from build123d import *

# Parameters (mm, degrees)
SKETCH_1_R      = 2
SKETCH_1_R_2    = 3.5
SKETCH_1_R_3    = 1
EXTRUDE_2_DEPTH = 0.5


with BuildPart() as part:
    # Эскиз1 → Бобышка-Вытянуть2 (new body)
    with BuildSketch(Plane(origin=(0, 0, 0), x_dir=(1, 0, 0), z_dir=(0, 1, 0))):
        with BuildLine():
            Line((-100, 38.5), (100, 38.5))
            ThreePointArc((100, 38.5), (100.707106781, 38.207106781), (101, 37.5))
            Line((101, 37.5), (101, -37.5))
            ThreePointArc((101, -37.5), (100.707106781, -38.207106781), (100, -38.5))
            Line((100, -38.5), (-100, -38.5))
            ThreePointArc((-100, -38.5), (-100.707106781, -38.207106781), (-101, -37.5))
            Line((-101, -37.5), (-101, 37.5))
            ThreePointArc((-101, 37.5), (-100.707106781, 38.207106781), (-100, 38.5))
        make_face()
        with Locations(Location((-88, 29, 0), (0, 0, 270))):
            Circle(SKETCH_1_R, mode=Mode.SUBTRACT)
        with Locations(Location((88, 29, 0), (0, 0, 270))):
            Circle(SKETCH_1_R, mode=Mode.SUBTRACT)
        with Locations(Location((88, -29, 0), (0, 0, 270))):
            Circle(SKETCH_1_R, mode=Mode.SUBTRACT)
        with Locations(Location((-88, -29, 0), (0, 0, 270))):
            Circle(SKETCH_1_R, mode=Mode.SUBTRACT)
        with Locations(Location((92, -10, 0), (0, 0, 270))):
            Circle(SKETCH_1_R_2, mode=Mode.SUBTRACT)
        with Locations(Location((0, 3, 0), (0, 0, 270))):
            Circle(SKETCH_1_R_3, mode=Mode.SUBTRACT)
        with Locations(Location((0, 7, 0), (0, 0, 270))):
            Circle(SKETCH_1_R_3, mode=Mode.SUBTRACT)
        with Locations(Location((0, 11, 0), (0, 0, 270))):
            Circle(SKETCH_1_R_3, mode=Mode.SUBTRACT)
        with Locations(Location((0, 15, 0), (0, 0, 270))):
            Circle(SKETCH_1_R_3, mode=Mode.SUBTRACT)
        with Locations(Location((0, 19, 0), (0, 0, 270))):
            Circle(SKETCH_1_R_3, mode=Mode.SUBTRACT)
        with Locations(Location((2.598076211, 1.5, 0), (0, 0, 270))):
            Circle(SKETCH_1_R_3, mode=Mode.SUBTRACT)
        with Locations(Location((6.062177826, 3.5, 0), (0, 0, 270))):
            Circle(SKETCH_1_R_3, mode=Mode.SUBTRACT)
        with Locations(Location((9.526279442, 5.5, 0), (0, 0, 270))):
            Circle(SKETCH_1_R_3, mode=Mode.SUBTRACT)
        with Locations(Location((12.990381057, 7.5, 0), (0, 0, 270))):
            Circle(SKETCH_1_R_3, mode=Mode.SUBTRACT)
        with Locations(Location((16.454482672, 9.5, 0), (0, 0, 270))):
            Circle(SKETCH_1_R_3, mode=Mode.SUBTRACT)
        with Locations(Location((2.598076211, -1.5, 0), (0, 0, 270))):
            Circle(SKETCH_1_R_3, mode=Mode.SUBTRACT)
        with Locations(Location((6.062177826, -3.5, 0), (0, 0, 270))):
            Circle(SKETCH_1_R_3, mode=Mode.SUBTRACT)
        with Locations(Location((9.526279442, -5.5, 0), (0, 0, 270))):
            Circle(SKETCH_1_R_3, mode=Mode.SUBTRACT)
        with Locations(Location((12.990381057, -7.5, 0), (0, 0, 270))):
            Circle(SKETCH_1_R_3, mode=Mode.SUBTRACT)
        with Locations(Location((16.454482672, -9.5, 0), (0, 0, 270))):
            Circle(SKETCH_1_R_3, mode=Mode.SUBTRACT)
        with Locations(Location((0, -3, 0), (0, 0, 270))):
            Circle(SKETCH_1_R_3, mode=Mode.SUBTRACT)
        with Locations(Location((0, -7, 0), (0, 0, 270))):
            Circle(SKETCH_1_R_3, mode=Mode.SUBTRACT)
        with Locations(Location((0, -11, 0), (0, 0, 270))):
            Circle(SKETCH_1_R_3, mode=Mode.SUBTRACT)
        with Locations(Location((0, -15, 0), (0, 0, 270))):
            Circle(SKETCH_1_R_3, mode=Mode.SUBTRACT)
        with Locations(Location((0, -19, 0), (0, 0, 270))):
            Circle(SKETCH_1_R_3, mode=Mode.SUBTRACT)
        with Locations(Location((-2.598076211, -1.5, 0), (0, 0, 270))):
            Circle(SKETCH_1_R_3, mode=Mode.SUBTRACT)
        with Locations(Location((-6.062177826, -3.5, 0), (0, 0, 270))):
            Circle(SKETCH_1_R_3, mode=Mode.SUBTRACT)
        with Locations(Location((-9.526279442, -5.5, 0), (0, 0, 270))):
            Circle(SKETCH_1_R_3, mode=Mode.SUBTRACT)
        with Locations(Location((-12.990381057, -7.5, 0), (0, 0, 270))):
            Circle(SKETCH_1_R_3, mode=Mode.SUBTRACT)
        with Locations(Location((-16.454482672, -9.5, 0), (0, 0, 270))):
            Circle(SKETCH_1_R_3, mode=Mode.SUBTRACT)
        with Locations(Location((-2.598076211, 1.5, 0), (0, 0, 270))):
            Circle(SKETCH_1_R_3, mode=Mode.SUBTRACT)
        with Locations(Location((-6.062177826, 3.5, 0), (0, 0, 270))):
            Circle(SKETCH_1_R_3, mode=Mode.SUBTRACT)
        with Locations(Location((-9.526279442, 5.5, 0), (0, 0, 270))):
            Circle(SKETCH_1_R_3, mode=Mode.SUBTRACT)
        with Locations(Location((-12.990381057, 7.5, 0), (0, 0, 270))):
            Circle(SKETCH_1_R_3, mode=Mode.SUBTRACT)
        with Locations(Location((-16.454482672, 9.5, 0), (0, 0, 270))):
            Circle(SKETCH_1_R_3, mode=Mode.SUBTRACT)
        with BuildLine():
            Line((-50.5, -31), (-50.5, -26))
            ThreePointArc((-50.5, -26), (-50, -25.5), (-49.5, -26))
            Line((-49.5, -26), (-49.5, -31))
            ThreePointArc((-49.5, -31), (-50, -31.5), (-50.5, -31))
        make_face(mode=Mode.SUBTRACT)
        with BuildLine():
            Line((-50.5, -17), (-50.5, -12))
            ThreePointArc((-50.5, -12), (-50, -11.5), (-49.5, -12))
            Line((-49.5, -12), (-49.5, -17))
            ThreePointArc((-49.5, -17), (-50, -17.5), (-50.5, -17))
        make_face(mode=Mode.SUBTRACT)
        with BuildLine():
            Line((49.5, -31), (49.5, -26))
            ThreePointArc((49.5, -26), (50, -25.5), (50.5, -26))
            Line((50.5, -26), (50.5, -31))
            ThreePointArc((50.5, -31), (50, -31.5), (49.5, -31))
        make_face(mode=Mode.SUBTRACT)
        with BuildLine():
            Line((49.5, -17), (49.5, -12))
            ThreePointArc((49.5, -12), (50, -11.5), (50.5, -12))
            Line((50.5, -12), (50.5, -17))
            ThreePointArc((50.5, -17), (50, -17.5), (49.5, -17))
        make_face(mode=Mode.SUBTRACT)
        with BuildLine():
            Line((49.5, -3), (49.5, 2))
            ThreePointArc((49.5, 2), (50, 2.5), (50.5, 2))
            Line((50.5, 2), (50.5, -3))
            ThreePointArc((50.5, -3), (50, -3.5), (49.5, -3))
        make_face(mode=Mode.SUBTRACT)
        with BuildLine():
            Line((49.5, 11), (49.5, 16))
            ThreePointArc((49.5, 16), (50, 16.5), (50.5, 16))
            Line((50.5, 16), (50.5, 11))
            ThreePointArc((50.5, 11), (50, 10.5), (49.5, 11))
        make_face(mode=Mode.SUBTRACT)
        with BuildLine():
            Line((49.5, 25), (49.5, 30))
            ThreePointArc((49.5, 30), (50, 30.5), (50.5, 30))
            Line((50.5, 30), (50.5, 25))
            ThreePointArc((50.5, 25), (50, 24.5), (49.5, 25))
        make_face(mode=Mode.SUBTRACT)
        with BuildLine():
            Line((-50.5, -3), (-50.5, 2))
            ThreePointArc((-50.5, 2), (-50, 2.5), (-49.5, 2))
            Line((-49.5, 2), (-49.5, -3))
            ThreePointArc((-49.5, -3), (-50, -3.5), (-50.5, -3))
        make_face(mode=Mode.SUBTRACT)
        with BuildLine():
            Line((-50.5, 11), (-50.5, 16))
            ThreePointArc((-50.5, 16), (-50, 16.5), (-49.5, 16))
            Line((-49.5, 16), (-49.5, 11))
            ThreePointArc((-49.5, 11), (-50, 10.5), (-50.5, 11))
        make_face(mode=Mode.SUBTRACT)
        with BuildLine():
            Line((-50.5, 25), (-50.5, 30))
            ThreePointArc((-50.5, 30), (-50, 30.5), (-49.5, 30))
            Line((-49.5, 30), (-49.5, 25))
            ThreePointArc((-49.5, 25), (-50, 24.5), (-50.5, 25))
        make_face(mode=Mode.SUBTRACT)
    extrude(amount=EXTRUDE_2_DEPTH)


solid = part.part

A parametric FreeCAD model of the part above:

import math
import FreeCAD as App
import Part
import Sketcher
Q = App.Units.Quantity

doc = App.newDocument("Part")
body = doc.addObject("PartDesign::Body", "Body")

# Sketch on XZ plane
sketch1 = doc.addObject("Sketcher::SketchObject", "Sketch")
body.addObject(sketch1)
sketch1.AttachmentSupport = (doc.XZ_Plane, [""])
sketch1.MapMode = "FlatFace"
sketch1.addGeometry(Part.LineSegment(App.Vector(100, -38.5, 0), App.Vector(-100, -38.5, 0)), False)
sketch1.addGeometry(Part.ArcOfCircle(Part.Circle(App.Vector(-100, -37.5, 0), App.Vector(0, 0, 1), 1), math.radians(-180), math.radians(-90)), False)
sketch1.addGeometry(Part.LineSegment(App.Vector(-101, -37.5, 0), App.Vector(-101, 37.5, 0)), False)
sketch1.addGeometry(Part.ArcOfCircle(Part.Circle(App.Vector(-100, 37.5, 0), App.Vector(0, 0, 1), 1), math.radians(90), math.radians(180)), False)
sketch1.addGeometry(Part.LineSegment(App.Vector(-100, 38.5, 0), App.Vector(100, 38.5, 0)), False)
sketch1.addGeometry(Part.ArcOfCircle(Part.Circle(App.Vector(100, 37.5, 0), App.Vector(0, 0, 1), 1), math.radians(0), math.radians(90)), False)
sketch1.addGeometry(Part.LineSegment(App.Vector(101, 37.5, 0), App.Vector(101, -37.5, 0)), False)
sketch1.addGeometry(Part.ArcOfCircle(Part.Circle(App.Vector(100, -37.5, 0), App.Vector(0, 0, 1), 1), math.radians(-90), math.radians(0)), False)
sketch1.addGeometry(Part.Circle(App.Vector(88, 29, 0), App.Vector(0, 0, 1), 2), False)
sketch1.addGeometry(Part.LineSegment(App.Vector(49.5, 31, 0), App.Vector(49.5, 26, 0)), False)
sketch1.addGeometry(Part.ArcOfCircle(Part.Circle(App.Vector(50, 26, 0), App.Vector(0, 0, 1), 0.5), math.radians(180), math.radians(360)), False)
sketch1.addGeometry(Part.LineSegment(App.Vector(50.5, 26, 0), App.Vector(50.5, 31, 0)), False)
sketch1.addGeometry(Part.ArcOfCircle(Part.Circle(App.Vector(50, 31, 0), App.Vector(0, 0, 1), 0.5), math.radians(0), math.radians(180)), False)
sketch1.addGeometry(Part.Circle(App.Vector(92, 10, 0), App.Vector(0, 0, 1), 3.5), False)
sketch1.addGeometry(Part.LineSegment(App.Vector(49.5, 17, 0), App.Vector(49.5, 12, 0)), False)
sketch1.addGeometry(Part.ArcOfCircle(Part.Circle(App.Vector(50, 12, 0), App.Vector(0, 0, 1), 0.5), math.radians(180), math.radians(360)), False)
sketch1.addGeometry(Part.LineSegment(App.Vector(50.5, 12, 0), App.Vector(50.5, 17, 0)), False)
sketch1.addGeometry(Part.ArcOfCircle(Part.Circle(App.Vector(50, 17, 0), App.Vector(0, 0, 1), 0.5), math.radians(0), math.radians(180)), False)
sketch1.addGeometry(Part.LineSegment(App.Vector(49.5, 3, 0), App.Vector(49.5, -2, 0)), False)
sketch1.addGeometry(Part.ArcOfCircle(Part.Circle(App.Vector(50, -2, 0), App.Vector(0, 0, 1), 0.5), math.radians(180), math.radians(360)), False)
sketch1.addGeometry(Part.LineSegment(App.Vector(50.5, -2, 0), App.Vector(50.5, 3, 0)), False)
sketch1.addGeometry(Part.ArcOfCircle(Part.Circle(App.Vector(50, 3, 0), App.Vector(0, 0, 1), 0.5), math.radians(0), math.radians(180)), False)
sketch1.addGeometry(Part.Circle(App.Vector(16.5, 9.5, 0), App.Vector(0, 0, 1), 1), False)
sketch1.addGeometry(Part.Circle(App.Vector(13, 7.5, 0), App.Vector(0, 0, 1), 1), False)
sketch1.addGeometry(Part.Circle(App.Vector(9.5, 5.5, 0), App.Vector(0, 0, 1), 1), False)
sketch1.addGeometry(Part.Circle(App.Vector(6.1, 3.5, 0), App.Vector(0, 0, 1), 1), False)
sketch1.addGeometry(Part.Circle(App.Vector(0, 19, 0), App.Vector(0, 0, 1), 1), False)
sketch1.addGeometry(Part.LineSegment(App.Vector(-50.5, 31, 0), App.Vector(-50.5, 26, 0)), False)
sketch1.addGeometry(Part.ArcOfCircle(Part.Circle(App.Vector(-50, 26, 0), App.Vector(0, 0, 1), 0.5), math.radians(180), math.radians(360)), False)
sketch1.addGeometry(Part.LineSegment(App.Vector(-49.5, 26, 0), App.Vector(-49.5, 31, 0)), False)
sketch1.addGeometry(Part.ArcOfCircle(Part.Circle(App.Vector(-50, 31, 0), App.Vector(0, 0, 1), 0.5), math.radians(0), math.radians(180)), False)
sketch1.addGeometry(Part.Circle(App.Vector(-88, 29, 0), App.Vector(0, 0, 1), 2), False)
sketch1.addGeometry(Part.Circle(App.Vector(0, 15, 0), App.Vector(0, 0, 1), 1), False)
sketch1.addGeometry(Part.Circle(App.Vector(0, 11, 0), App.Vector(0, 0, 1), 1), False)
sketch1.addGeometry(Part.Circle(App.Vector(-16.5, 9.5, 0), App.Vector(0, 0, 1), 1), False)
sketch1.addGeometry(Part.Circle(App.Vector(0, 7, 0), App.Vector(0, 0, 1), 1), False)
sketch1.addGeometry(Part.Circle(App.Vector(-13, 7.5, 0), App.Vector(0, 0, 1), 1), False)
sketch1.addGeometry(Part.Circle(App.Vector(-9.5, 5.5, 0), App.Vector(0, 0, 1), 1), False)
sketch1.addGeometry(Part.Circle(App.Vector(0, 3, 0), App.Vector(0, 0, 1), 1), False)
sketch1.addGeometry(Part.Circle(App.Vector(-6.1, 3.5, 0), App.Vector(0, 0, 1), 1), False)
sketch1.addGeometry(Part.Circle(App.Vector(2.6, 1.5, 0), App.Vector(0, 0, 1), 1), False)
sketch1.addGeometry(Part.Circle(App.Vector(-2.6, 1.5, 0), App.Vector(0, 0, 1), 1), False)
sketch1.addGeometry(Part.LineSegment(App.Vector(-50.5, 17, 0), App.Vector(-50.5, 12, 0)), False)
sketch1.addGeometry(Part.ArcOfCircle(Part.Circle(App.Vector(-50, 12, 0), App.Vector(0, 0, 1), 0.5), math.radians(180), math.radians(360)), False)
sketch1.addGeometry(Part.LineSegment(App.Vector(-49.5, 12, 0), App.Vector(-49.5, 17, 0)), False)
sketch1.addGeometry(Part.ArcOfCircle(Part.Circle(App.Vector(-50, 17, 0), App.Vector(0, 0, 1), 0.5), math.radians(0), math.radians(180)), False)
sketch1.addGeometry(Part.LineSegment(App.Vector(-50.5, 3, 0), App.Vector(-50.5, -2, 0)), False)
sketch1.addGeometry(Part.ArcOfCircle(Part.Circle(App.Vector(-50, -2, 0), App.Vector(0, 0, 1), 0.5), math.radians(180), math.radians(360)), False)
sketch1.addGeometry(Part.LineSegment(App.Vector(-49.5, -2, 0), App.Vector(-49.5, 3, 0)), False)
sketch1.addGeometry(Part.ArcOfCircle(Part.Circle(App.Vector(-50, 3, 0), App.Vector(0, 0, 1), 0.5), math.radians(0), math.radians(180)), False)
sketch1.addGeometry(Part.LineSegment(App.Vector(49.5, -11, 0), App.Vector(49.5, -16, 0)), False)
sketch1.addGeometry(Part.ArcOfCircle(Part.Circle(App.Vector(50, -16, 0), App.Vector(0, 0, 1), 0.5), math.radians(180), math.radians(360)), False)
sketch1.addGeometry(Part.LineSegment(App.Vector(50.5, -16, 0), App.Vector(50.5, -11, 0)), False)
sketch1.addGeometry(Part.ArcOfCircle(Part.Circle(App.Vector(50, -11, 0), App.Vector(0, 0, 1), 0.5), math.radians(0), math.radians(180)), False)
sketch1.addGeometry(Part.Circle(App.Vector(6.1, -3.5, 0), App.Vector(0, 0, 1), 1), False)
sketch1.addGeometry(Part.Circle(App.Vector(9.5, -5.5, 0), App.Vector(0, 0, 1), 1), False)
sketch1.addGeometry(Part.Circle(App.Vector(13, -7.5, 0), App.Vector(0, 0, 1), 1), False)
sketch1.addGeometry(Part.Circle(App.Vector(16.5, -9.5, 0), App.Vector(0, 0, 1), 1), False)
sketch1.addGeometry(Part.Circle(App.Vector(88, -29, 0), App.Vector(0, 0, 1), 2), False)
sketch1.addGeometry(Part.LineSegment(App.Vector(49.5, -25, 0), App.Vector(49.5, -30, 0)), False)
sketch1.addGeometry(Part.ArcOfCircle(Part.Circle(App.Vector(50, -30, 0), App.Vector(0, 0, 1), 0.5), math.radians(180), math.radians(360)), False)
sketch1.addGeometry(Part.LineSegment(App.Vector(50.5, -30, 0), App.Vector(50.5, -25, 0)), False)
sketch1.addGeometry(Part.ArcOfCircle(Part.Circle(App.Vector(50, -25, 0), App.Vector(0, 0, 1), 0.5), math.radians(0), math.radians(180)), False)
sketch1.addGeometry(Part.Circle(App.Vector(2.6, -1.5, 0), App.Vector(0, 0, 1), 1), False)
sketch1.addGeometry(Part.Circle(App.Vector(-2.6, -1.5, 0), App.Vector(0, 0, 1), 1), False)
sketch1.addGeometry(Part.Circle(App.Vector(0, -3, 0), App.Vector(0, 0, 1), 1), False)
sketch1.addGeometry(Part.Circle(App.Vector(-6.1, -3.5, 0), App.Vector(0, 0, 1), 1), False)
sketch1.addGeometry(Part.Circle(App.Vector(0, -7, 0), App.Vector(0, 0, 1), 1), False)
sketch1.addGeometry(Part.Circle(App.Vector(-9.5, -5.5, 0), App.Vector(0, 0, 1), 1), False)
sketch1.addGeometry(Part.Circle(App.Vector(-13, -7.5, 0), App.Vector(0, 0, 1), 1), False)
sketch1.addGeometry(Part.Circle(App.Vector(0, -11, 0), App.Vector(0, 0, 1), 1), False)
sketch1.addGeometry(Part.Circle(App.Vector(-16.5, -9.5, 0), App.Vector(0, 0, 1), 1), False)
sketch1.addGeometry(Part.Circle(App.Vector(0, -15, 0), App.Vector(0, 0, 1), 1), False)
sketch1.addGeometry(Part.LineSegment(App.Vector(-50.5, -11, 0), App.Vector(-50.5, -16, 0)), False)
sketch1.addGeometry(Part.ArcOfCircle(Part.Circle(App.Vector(-50, -16, 0), App.Vector(0, 0, 1), 0.5), math.radians(180), math.radians(360)), False)
sketch1.addGeometry(Part.LineSegment(App.Vector(-49.5, -16, 0), App.Vector(-49.5, -11, 0)), False)
sketch1.addGeometry(Part.ArcOfCircle(Part.Circle(App.Vector(-50, -11, 0), App.Vector(0, 0, 1), 0.5), math.radians(0), math.radians(180)), False)
sketch1.addGeometry(Part.Circle(App.Vector(0, -19, 0), App.Vector(0, 0, 1), 1), False)
sketch1.addGeometry(Part.LineSegment(App.Vector(-50.5, -25, 0), App.Vector(-50.5, -30, 0)), False)
sketch1.addGeometry(Part.ArcOfCircle(Part.Circle(App.Vector(-50, -30, 0), App.Vector(0, 0, 1), 0.5), math.radians(180), math.radians(360)), False)
sketch1.addGeometry(Part.LineSegment(App.Vector(-49.5, -30, 0), App.Vector(-49.5, -25, 0)), False)
sketch1.addGeometry(Part.ArcOfCircle(Part.Circle(App.Vector(-50, -25, 0), App.Vector(0, 0, 1), 0.5), math.radians(0), math.radians(180)), False)
sketch1.addGeometry(Part.Circle(App.Vector(-88, -29, 0), App.Vector(0, 0, 1), 2), False)
sketch1.addConstraint(Sketcher.Constraint("Tangent", 0, 2, 1, 2))
sketch1.addConstraint(Sketcher.Constraint("Tangent", 1, 1, 2, 1))
sketch1.addConstraint(Sketcher.Constraint("Tangent", 2, 2, 3, 2))
sketch1.addConstraint(Sketcher.Constraint("Tangent", 3, 1, 4, 1))
sketch1.addConstraint(Sketcher.Constraint("Tangent", 4, 2, 5, 2))
sketch1.addConstraint(Sketcher.Constraint("Tangent", 5, 1, 6, 1))
sketch1.addConstraint(Sketcher.Constraint("Tangent", 6, 2, 7, 2))
sketch1.addConstraint(Sketcher.Constraint("Tangent", 7, 1, 0, 1))
sketch1.addConstraint(Sketcher.Constraint("Tangent", 9, 2, 10, 1))
sketch1.addConstraint(Sketcher.Constraint("Tangent", 10, 2, 11, 1))
sketch1.addConstraint(Sketcher.Constraint("Tangent", 11, 2, 12, 1))
sketch1.addConstraint(Sketcher.Constraint("Tangent", 12, 2, 9, 1))
sketch1.addConstraint(Sketcher.Constraint("Tangent", 14, 2, 15, 1))
sketch1.addConstraint(Sketcher.Constraint("Tangent", 15, 2, 16, 1))
sketch1.addConstraint(Sketcher.Constraint("Tangent", 16, 2, 17, 1))
sketch1.addConstraint(Sketcher.Constraint("Tangent", 17, 2, 14, 1))
sketch1.addConstraint(Sketcher.Constraint("Tangent", 18, 2, 19, 1))
sketch1.addConstraint(Sketcher.Constraint("Tangent", 19, 2, 20, 1))
sketch1.addConstraint(Sketcher.Constraint("Tangent", 20, 2, 21, 1))
sketch1.addConstraint(Sketcher.Constraint("Tangent", 21, 2, 18, 1))
sketch1.addConstraint(Sketcher.Constraint("Tangent", 27, 2, 28, 1))
sketch1.addConstraint(Sketcher.Constraint("Tangent", 28, 2, 29, 1))
sketch1.addConstraint(Sketcher.Constraint("Tangent", 29, 2, 30, 1))
sketch1.addConstraint(Sketcher.Constraint("Tangent", 30, 2, 27, 1))
sketch1.addConstraint(Sketcher.Constraint("Tangent", 42, 2, 43, 1))
sketch1.addConstraint(Sketcher.Constraint("Tangent", 43, 2, 44, 1))
sketch1.addConstraint(Sketcher.Constraint("Tangent", 44, 2, 45, 1))
sketch1.addConstraint(Sketcher.Constraint("Tangent", 45, 2, 42, 1))
sketch1.addConstraint(Sketcher.Constraint("Tangent", 46, 2, 47, 1))
sketch1.addConstraint(Sketcher.Constraint("Tangent", 47, 2, 48, 1))
sketch1.addConstraint(Sketcher.Constraint("Tangent", 48, 2, 49, 1))
sketch1.addConstraint(Sketcher.Constraint("Tangent", 49, 2, 46, 1))
sketch1.addConstraint(Sketcher.Constraint("Tangent", 50, 2, 51, 1))
sketch1.addConstraint(Sketcher.Constraint("Tangent", 51, 2, 52, 1))
sketch1.addConstraint(Sketcher.Constraint("Tangent", 52, 2, 53, 1))
sketch1.addConstraint(Sketcher.Constraint("Tangent", 53, 2, 50, 1))
sketch1.addConstraint(Sketcher.Constraint("Tangent", 59, 2, 60, 1))
sketch1.addConstraint(Sketcher.Constraint("Tangent", 60, 2, 61, 1))
sketch1.addConstraint(Sketcher.Constraint("Tangent", 61, 2, 62, 1))
sketch1.addConstraint(Sketcher.Constraint("Tangent", 62, 2, 59, 1))
sketch1.addConstraint(Sketcher.Constraint("Tangent", 73, 2, 74, 1))
sketch1.addConstraint(Sketcher.Constraint("Tangent", 74, 2, 75, 1))
sketch1.addConstraint(Sketcher.Constraint("Tangent", 75, 2, 76, 1))
sketch1.addConstraint(Sketcher.Constraint("Tangent", 76, 2, 73, 1))
sketch1.addConstraint(Sketcher.Constraint("Tangent", 78, 2, 79, 1))
sketch1.addConstraint(Sketcher.Constraint("Tangent", 79, 2, 80, 1))
sketch1.addConstraint(Sketcher.Constraint("Tangent", 80, 2, 81, 1))
sketch1.addConstraint(Sketcher.Constraint("Tangent", 81, 2, 78, 1))
sketch1.addConstraint(Sketcher.Constraint("Horizontal", 0))
sketch1.addConstraint(Sketcher.Constraint("Vertical", 2))
sketch1.addConstraint(Sketcher.Constraint("Horizontal", 4))
sketch1.addConstraint(Sketcher.Constraint("Vertical", 6))
sketch1.addConstraint(Sketcher.Constraint("Vertical", 9))
sketch1.addConstraint(Sketcher.Constraint("Vertical", 11))
sketch1.addConstraint(Sketcher.Constraint("Vertical", 14))
sketch1.addConstraint(Sketcher.Constraint("Vertical", 16))
sketch1.addConstraint(Sketcher.Constraint("Vertical", 18))
sketch1.addConstraint(Sketcher.Constraint("Vertical", 20))
sketch1.addConstraint(Sketcher.Constraint("Vertical", 27))
sketch1.addConstraint(Sketcher.Constraint("Vertical", 29))
sketch1.addConstraint(Sketcher.Constraint("Vertical", 42))
sketch1.addConstraint(Sketcher.Constraint("Vertical", 44))
sketch1.addConstraint(Sketcher.Constraint("Vertical", 46))
sketch1.addConstraint(Sketcher.Constraint("Vertical", 48))
sketch1.addConstraint(Sketcher.Constraint("Vertical", 50))
sketch1.addConstraint(Sketcher.Constraint("Vertical", 52))
sketch1.addConstraint(Sketcher.Constraint("Vertical", 59))
sketch1.addConstraint(Sketcher.Constraint("Vertical", 61))
sketch1.addConstraint(Sketcher.Constraint("Vertical", 73))
sketch1.addConstraint(Sketcher.Constraint("Vertical", 75))
sketch1.addConstraint(Sketcher.Constraint("Vertical", 78))
sketch1.addConstraint(Sketcher.Constraint("Vertical", 80))
sketch1.addConstraint(Sketcher.Constraint("Equal", 1, 3))
sketch1.addConstraint(Sketcher.Constraint("Equal", 3, 5))
sketch1.addConstraint(Sketcher.Constraint("Equal", 5, 7))
sketch1.addConstraint(Sketcher.Constraint("Equal", 12, 15))
sketch1.addConstraint(Sketcher.Constraint("Equal", 17, 19))
sketch1.addConstraint(Sketcher.Constraint("Equal", 7, 22))
sketch1.addConstraint(Sketcher.Constraint("Equal", 22, 23))
sketch1.addConstraint(Sketcher.Constraint("Equal", 23, 24))
sketch1.addConstraint(Sketcher.Constraint("Equal", 24, 25))
sketch1.addConstraint(Sketcher.Constraint("Equal", 25, 26))
sketch1.addConstraint(Sketcher.Constraint("Equal", 21, 28))
sketch1.addConstraint(Sketcher.Constraint("Equal", 8, 31))
sketch1.addConstraint(Sketcher.Constraint("Equal", 26, 32))
sketch1.addConstraint(Sketcher.Constraint("Equal", 32, 33))
sketch1.addConstraint(Sketcher.Constraint("Equal", 33, 34))
sketch1.addConstraint(Sketcher.Constraint("Equal", 34, 35))
sketch1.addConstraint(Sketcher.Constraint("Equal", 35, 36))
sketch1.addConstraint(Sketcher.Constraint("Equal", 36, 37))
sketch1.addConstraint(Sketcher.Constraint("Equal", 37, 38))
sketch1.addConstraint(Sketcher.Constraint("Equal", 38, 39))
sketch1.addConstraint(Sketcher.Constraint("Equal", 39, 40))
sketch1.addConstraint(Sketcher.Constraint("Equal", 40, 41))
sketch1.addConstraint(Sketcher.Constraint("Equal", 30, 43))
sketch1.addConstraint(Sketcher.Constraint("Equal", 45, 47))
sketch1.addConstraint(Sketcher.Constraint("Equal", 49, 51))
sketch1.addConstraint(Sketcher.Constraint("Equal", 41, 54))
sketch1.addConstraint(Sketcher.Constraint("Equal", 54, 55))
sketch1.addConstraint(Sketcher.Constraint("Equal", 55, 56))
sketch1.addConstraint(Sketcher.Constraint("Equal", 56, 57))
sketch1.addConstraint(Sketcher.Constraint("Equal", 31, 58))
sketch1.addConstraint(Sketcher.Constraint("Equal", 53, 60))
sketch1.addConstraint(Sketcher.Constraint("Equal", 57, 63))
sketch1.addConstraint(Sketcher.Constraint("Equal", 63, 64))
sketch1.addConstraint(Sketcher.Constraint("Equal", 64, 65))
sketch1.addConstraint(Sketcher.Constraint("Equal", 65, 66))
sketch1.addConstraint(Sketcher.Constraint("Equal", 66, 67))
sketch1.addConstraint(Sketcher.Constraint("Equal", 67, 68))
sketch1.addConstraint(Sketcher.Constraint("Equal", 68, 69))
sketch1.addConstraint(Sketcher.Constraint("Equal", 69, 70))
sketch1.addConstraint(Sketcher.Constraint("Equal", 70, 71))
sketch1.addConstraint(Sketcher.Constraint("Equal", 71, 72))
sketch1.addConstraint(Sketcher.Constraint("Equal", 62, 74))
sketch1.addConstraint(Sketcher.Constraint("Equal", 72, 77))
sketch1.addConstraint(Sketcher.Constraint("Equal", 76, 79))
sketch1.addConstraint(Sketcher.Constraint("Equal", 58, 82))
sketch1.addConstraint(Sketcher.Constraint("Symmetric", 1, 3, 5, 3, -1, 1))
sketch1.addConstraint(Sketcher.Constraint("Symmetric", 39, 3, 54, 3, -1, 1))
sketch1.addConstraint(Sketcher.Constraint("Symmetric", 37, 3, 55, 3, -1, 1))
sketch1.addConstraint(Sketcher.Constraint("Symmetric", 36, 3, 56, 3, -1, 1))
sketch1.addConstraint(Sketcher.Constraint("Symmetric", 34, 3, 57, 3, -1, 1))
sketch1.addConstraint(Sketcher.Constraint("Symmetric", 31, 3, 58, 3, -1, 1))
sketch1.addConstraint(Sketcher.Constraint("Symmetric", 41, 3, 63, 3, -1, 1))
sketch1.addConstraint(Sketcher.Constraint("Symmetric", 40, 3, 64, 3, -1, 1))
sketch1.addConstraint(Sketcher.Constraint("Symmetric", 38, 3, 65, 3, -1, 1))
sketch1.addConstraint(Sketcher.Constraint("Symmetric", 25, 3, 66, 3, -1, 1))
sketch1.addConstraint(Sketcher.Constraint("Symmetric", 35, 3, 67, 3, -1, 1))
sketch1.addConstraint(Sketcher.Constraint("Symmetric", 24, 3, 68, 3, -1, 1))
sketch1.addConstraint(Sketcher.Constraint("Symmetric", 23, 3, 69, 3, -1, 1))
sketch1.addConstraint(Sketcher.Constraint("Symmetric", 33, 3, 70, 3, -1, 1))
sketch1.addConstraint(Sketcher.Constraint("Symmetric", 22, 3, 71, 3, -1, 1))
sketch1.addConstraint(Sketcher.Constraint("Symmetric", 32, 3, 72, 3, -1, 1))
sketch1.addConstraint(Sketcher.Constraint("Symmetric", 26, 3, 77, 3, -1, 1))
sketch1.addConstraint(Sketcher.Constraint("Symmetric", 8, 3, 82, 3, -1, 1))
sketch1.addConstraint(Sketcher.Constraint("Symmetric", 10, 3, 28, 3, -2))
sketch1.addConstraint(Sketcher.Constraint("Symmetric", 8, 3, 31, 3, -2))
sketch1.addConstraint(Sketcher.Constraint("Symmetric", 22, 3, 34, 3, -2))
sketch1.addConstraint(Sketcher.Constraint("Symmetric", 23, 3, 36, 3, -2))
sketch1.addConstraint(Sketcher.Constraint("Symmetric", 24, 3, 37, 3, -2))
sketch1.addConstraint(Sketcher.Constraint("Symmetric", 25, 3, 39, 3, -2))
sketch1.addConstraint(Sketcher.Constraint("Symmetric", 40, 3, 41, 3, -2))
sketch1.addConstraint(Sketcher.Constraint("Symmetric", 15, 3, 43, 3, -2))
sketch1.addConstraint(Sketcher.Constraint("Symmetric", 19, 3, 47, 3, -2))
sketch1.addConstraint(Sketcher.Constraint("Symmetric", 51, 3, 74, 3, -2))
sketch1.addConstraint(Sketcher.Constraint("Symmetric", 60, 3, 79, 3, -2))
sketch1.addConstraint(Sketcher.Constraint("PointOnObject", 26, 3, -2))
sketch1.addConstraint(Sketcher.Constraint("PointOnObject", 32, 3, -2))
sketch1.addConstraint(Sketcher.Constraint("PointOnObject", 33, 3, -2))
sketch1.addConstraint(Sketcher.Constraint("PointOnObject", 35, 3, -2))
sketch1.addConstraint(Sketcher.Constraint("PointOnObject", 38, 3, -2))
sketch1.addConstraint(Sketcher.Constraint("Horizontal", 12, 3, 30, 3))
sketch1.addConstraint(Sketcher.Constraint("Horizontal", 21, 3, 38, 3))
sketch1.addConstraint(Sketcher.Constraint("Horizontal", 17, 3, 45, 3))
sketch1.addConstraint(Sketcher.Constraint("Horizontal", 38, 3, 49, 3))
sketch1.addConstraint(Sketcher.Constraint("Horizontal", 53, 3, 70, 3))
sketch1.addConstraint(Sketcher.Constraint("Horizontal", 70, 3, 76, 3))
sketch1.addConstraint(Sketcher.Constraint("Horizontal", 62, 3, 81, 3))
sketch1.addConstraint(Sketcher.Constraint("Vertical", 12, 3, 15, 3))
sketch1.addConstraint(Sketcher.Constraint("Vertical", 17, 3, 19, 3))
sketch1.addConstraint(Sketcher.Constraint("Vertical", 21, 3, 51, 3))
sketch1.addConstraint(Sketcher.Constraint("Vertical", 53, 3, 60, 3))
sketch1.addConstraint(Sketcher.Constraint("Equal", 11, 14))
sketch1.addConstraint(Sketcher.Constraint("Equal", 16, 18))
sketch1.addConstraint(Sketcher.Constraint("Equal", 48, 50))
sketch1.addConstraint(Sketcher.Constraint("Equal", 52, 59))
sketch1.addConstraint(Sketcher.Constraint("Diameter", 8, Q("4 mm")))
sketch1.addConstraint(Sketcher.Constraint("Diameter", 13, Q("7 mm")))
sketch1.addConstraint(Sketcher.Constraint("Diameter", 22, Q("2 mm")))
sketch1.addConstraint(Sketcher.Constraint("Radius", 10, Q("0.5 mm")))
sketch1.addConstraint(Sketcher.Constraint("DistanceX", 0, 2, 0, 1, Q("200 mm")))
sketch1.addConstraint(Sketcher.Constraint("DistanceY", 2, 1, 2, 2, Q("75 mm")))
sketch1.addConstraint(Sketcher.Constraint("DistanceY", 9, 2, 9, 1, Q("5 mm")))
sketch1.addConstraint(Sketcher.Constraint("DistanceX", -1, 1, 8, 3, Q("88 mm")))
sketch1.addConstraint(Sketcher.Constraint("DistanceY", -1, 1, 8, 3, Q("29 mm")))
sketch1.addConstraint(Sketcher.Constraint("DistanceX", -1, 1, 10, 3, Q("50 mm")))
sketch1.addConstraint(Sketcher.Constraint("DistanceY", -1, 1, 10, 3, Q("26 mm")))
sketch1.addConstraint(Sketcher.Constraint("DistanceX", -1, 1, 13, 3, Q("92 mm")))
sketch1.addConstraint(Sketcher.Constraint("DistanceY", -1, 1, 13, 3, Q("10 mm")))
sketch1.addConstraint(Sketcher.Constraint("DistanceY", -1, 1, 15, 3, Q("12 mm")))
sketch1.addConstraint(Sketcher.Constraint("DistanceY", 19, 3, -1, 1, Q("2 mm")))
sketch1.addConstraint(Sketcher.Constraint("DistanceY", -1, 1, 26, 3, Q("19 mm")))
sketch1.addConstraint(Sketcher.Constraint("DistanceY", -1, 1, 32, 3, Q("15 mm")))
sketch1.addConstraint(Sketcher.Constraint("DistanceY", -1, 1, 33, 3, Q("11 mm")))
sketch1.addConstraint(Sketcher.Constraint("DistanceY", -1, 1, 35, 3, Q("7 mm")))
sketch1.addConstraint(Sketcher.Constraint("DistanceY", 60, 3, -1, 1, Q("30 mm")))
sketch1.addConstraint(Sketcher.Constraint("DistanceY", -1, 1, 22, 3, Q("9.5 mm")))
sketch1.addConstraint(Sketcher.Constraint("DistanceY", -1, 1, 23, 3, Q("7.5 mm")))
sketch1.addConstraint(Sketcher.Constraint("DistanceY", -1, 1, 24, 3, Q("5.5 mm")))
sketch1.addConstraint(Sketcher.Constraint("DistanceY", -1, 1, 25, 3, Q("3.5 mm")))
sketch1.addConstraint(Sketcher.Constraint("DistanceY", -1, 1, 40, 3, Q("1.5 mm")))
sketch1.addConstraint(Sketcher.Constraint("DistanceX", -1, 1, 23, 3, Q("12.990381 mm")))
sketch1.addConstraint(Sketcher.Constraint("DistanceX", -1, 1, 24, 3, Q("9.526279 mm")))
sketch1.addConstraint(Sketcher.Constraint("DistanceX", -1, 1, 22, 3, Q("16.454483 mm")))
sketch1.addConstraint(Sketcher.Constraint("DistanceX", -1, 1, 25, 3, Q("6.062178 mm")))
sketch1.addConstraint(Sketcher.Constraint("DistanceX", -1, 1, 40, 3, Q("2.598076 mm")))
pad1 = doc.addObject("PartDesign::Pad", "Pad")
body.addObject(pad1)
pad1.Profile = sketch1
pad1.Length = 0.5
pad1.Reversed = True

doc.recompute()
